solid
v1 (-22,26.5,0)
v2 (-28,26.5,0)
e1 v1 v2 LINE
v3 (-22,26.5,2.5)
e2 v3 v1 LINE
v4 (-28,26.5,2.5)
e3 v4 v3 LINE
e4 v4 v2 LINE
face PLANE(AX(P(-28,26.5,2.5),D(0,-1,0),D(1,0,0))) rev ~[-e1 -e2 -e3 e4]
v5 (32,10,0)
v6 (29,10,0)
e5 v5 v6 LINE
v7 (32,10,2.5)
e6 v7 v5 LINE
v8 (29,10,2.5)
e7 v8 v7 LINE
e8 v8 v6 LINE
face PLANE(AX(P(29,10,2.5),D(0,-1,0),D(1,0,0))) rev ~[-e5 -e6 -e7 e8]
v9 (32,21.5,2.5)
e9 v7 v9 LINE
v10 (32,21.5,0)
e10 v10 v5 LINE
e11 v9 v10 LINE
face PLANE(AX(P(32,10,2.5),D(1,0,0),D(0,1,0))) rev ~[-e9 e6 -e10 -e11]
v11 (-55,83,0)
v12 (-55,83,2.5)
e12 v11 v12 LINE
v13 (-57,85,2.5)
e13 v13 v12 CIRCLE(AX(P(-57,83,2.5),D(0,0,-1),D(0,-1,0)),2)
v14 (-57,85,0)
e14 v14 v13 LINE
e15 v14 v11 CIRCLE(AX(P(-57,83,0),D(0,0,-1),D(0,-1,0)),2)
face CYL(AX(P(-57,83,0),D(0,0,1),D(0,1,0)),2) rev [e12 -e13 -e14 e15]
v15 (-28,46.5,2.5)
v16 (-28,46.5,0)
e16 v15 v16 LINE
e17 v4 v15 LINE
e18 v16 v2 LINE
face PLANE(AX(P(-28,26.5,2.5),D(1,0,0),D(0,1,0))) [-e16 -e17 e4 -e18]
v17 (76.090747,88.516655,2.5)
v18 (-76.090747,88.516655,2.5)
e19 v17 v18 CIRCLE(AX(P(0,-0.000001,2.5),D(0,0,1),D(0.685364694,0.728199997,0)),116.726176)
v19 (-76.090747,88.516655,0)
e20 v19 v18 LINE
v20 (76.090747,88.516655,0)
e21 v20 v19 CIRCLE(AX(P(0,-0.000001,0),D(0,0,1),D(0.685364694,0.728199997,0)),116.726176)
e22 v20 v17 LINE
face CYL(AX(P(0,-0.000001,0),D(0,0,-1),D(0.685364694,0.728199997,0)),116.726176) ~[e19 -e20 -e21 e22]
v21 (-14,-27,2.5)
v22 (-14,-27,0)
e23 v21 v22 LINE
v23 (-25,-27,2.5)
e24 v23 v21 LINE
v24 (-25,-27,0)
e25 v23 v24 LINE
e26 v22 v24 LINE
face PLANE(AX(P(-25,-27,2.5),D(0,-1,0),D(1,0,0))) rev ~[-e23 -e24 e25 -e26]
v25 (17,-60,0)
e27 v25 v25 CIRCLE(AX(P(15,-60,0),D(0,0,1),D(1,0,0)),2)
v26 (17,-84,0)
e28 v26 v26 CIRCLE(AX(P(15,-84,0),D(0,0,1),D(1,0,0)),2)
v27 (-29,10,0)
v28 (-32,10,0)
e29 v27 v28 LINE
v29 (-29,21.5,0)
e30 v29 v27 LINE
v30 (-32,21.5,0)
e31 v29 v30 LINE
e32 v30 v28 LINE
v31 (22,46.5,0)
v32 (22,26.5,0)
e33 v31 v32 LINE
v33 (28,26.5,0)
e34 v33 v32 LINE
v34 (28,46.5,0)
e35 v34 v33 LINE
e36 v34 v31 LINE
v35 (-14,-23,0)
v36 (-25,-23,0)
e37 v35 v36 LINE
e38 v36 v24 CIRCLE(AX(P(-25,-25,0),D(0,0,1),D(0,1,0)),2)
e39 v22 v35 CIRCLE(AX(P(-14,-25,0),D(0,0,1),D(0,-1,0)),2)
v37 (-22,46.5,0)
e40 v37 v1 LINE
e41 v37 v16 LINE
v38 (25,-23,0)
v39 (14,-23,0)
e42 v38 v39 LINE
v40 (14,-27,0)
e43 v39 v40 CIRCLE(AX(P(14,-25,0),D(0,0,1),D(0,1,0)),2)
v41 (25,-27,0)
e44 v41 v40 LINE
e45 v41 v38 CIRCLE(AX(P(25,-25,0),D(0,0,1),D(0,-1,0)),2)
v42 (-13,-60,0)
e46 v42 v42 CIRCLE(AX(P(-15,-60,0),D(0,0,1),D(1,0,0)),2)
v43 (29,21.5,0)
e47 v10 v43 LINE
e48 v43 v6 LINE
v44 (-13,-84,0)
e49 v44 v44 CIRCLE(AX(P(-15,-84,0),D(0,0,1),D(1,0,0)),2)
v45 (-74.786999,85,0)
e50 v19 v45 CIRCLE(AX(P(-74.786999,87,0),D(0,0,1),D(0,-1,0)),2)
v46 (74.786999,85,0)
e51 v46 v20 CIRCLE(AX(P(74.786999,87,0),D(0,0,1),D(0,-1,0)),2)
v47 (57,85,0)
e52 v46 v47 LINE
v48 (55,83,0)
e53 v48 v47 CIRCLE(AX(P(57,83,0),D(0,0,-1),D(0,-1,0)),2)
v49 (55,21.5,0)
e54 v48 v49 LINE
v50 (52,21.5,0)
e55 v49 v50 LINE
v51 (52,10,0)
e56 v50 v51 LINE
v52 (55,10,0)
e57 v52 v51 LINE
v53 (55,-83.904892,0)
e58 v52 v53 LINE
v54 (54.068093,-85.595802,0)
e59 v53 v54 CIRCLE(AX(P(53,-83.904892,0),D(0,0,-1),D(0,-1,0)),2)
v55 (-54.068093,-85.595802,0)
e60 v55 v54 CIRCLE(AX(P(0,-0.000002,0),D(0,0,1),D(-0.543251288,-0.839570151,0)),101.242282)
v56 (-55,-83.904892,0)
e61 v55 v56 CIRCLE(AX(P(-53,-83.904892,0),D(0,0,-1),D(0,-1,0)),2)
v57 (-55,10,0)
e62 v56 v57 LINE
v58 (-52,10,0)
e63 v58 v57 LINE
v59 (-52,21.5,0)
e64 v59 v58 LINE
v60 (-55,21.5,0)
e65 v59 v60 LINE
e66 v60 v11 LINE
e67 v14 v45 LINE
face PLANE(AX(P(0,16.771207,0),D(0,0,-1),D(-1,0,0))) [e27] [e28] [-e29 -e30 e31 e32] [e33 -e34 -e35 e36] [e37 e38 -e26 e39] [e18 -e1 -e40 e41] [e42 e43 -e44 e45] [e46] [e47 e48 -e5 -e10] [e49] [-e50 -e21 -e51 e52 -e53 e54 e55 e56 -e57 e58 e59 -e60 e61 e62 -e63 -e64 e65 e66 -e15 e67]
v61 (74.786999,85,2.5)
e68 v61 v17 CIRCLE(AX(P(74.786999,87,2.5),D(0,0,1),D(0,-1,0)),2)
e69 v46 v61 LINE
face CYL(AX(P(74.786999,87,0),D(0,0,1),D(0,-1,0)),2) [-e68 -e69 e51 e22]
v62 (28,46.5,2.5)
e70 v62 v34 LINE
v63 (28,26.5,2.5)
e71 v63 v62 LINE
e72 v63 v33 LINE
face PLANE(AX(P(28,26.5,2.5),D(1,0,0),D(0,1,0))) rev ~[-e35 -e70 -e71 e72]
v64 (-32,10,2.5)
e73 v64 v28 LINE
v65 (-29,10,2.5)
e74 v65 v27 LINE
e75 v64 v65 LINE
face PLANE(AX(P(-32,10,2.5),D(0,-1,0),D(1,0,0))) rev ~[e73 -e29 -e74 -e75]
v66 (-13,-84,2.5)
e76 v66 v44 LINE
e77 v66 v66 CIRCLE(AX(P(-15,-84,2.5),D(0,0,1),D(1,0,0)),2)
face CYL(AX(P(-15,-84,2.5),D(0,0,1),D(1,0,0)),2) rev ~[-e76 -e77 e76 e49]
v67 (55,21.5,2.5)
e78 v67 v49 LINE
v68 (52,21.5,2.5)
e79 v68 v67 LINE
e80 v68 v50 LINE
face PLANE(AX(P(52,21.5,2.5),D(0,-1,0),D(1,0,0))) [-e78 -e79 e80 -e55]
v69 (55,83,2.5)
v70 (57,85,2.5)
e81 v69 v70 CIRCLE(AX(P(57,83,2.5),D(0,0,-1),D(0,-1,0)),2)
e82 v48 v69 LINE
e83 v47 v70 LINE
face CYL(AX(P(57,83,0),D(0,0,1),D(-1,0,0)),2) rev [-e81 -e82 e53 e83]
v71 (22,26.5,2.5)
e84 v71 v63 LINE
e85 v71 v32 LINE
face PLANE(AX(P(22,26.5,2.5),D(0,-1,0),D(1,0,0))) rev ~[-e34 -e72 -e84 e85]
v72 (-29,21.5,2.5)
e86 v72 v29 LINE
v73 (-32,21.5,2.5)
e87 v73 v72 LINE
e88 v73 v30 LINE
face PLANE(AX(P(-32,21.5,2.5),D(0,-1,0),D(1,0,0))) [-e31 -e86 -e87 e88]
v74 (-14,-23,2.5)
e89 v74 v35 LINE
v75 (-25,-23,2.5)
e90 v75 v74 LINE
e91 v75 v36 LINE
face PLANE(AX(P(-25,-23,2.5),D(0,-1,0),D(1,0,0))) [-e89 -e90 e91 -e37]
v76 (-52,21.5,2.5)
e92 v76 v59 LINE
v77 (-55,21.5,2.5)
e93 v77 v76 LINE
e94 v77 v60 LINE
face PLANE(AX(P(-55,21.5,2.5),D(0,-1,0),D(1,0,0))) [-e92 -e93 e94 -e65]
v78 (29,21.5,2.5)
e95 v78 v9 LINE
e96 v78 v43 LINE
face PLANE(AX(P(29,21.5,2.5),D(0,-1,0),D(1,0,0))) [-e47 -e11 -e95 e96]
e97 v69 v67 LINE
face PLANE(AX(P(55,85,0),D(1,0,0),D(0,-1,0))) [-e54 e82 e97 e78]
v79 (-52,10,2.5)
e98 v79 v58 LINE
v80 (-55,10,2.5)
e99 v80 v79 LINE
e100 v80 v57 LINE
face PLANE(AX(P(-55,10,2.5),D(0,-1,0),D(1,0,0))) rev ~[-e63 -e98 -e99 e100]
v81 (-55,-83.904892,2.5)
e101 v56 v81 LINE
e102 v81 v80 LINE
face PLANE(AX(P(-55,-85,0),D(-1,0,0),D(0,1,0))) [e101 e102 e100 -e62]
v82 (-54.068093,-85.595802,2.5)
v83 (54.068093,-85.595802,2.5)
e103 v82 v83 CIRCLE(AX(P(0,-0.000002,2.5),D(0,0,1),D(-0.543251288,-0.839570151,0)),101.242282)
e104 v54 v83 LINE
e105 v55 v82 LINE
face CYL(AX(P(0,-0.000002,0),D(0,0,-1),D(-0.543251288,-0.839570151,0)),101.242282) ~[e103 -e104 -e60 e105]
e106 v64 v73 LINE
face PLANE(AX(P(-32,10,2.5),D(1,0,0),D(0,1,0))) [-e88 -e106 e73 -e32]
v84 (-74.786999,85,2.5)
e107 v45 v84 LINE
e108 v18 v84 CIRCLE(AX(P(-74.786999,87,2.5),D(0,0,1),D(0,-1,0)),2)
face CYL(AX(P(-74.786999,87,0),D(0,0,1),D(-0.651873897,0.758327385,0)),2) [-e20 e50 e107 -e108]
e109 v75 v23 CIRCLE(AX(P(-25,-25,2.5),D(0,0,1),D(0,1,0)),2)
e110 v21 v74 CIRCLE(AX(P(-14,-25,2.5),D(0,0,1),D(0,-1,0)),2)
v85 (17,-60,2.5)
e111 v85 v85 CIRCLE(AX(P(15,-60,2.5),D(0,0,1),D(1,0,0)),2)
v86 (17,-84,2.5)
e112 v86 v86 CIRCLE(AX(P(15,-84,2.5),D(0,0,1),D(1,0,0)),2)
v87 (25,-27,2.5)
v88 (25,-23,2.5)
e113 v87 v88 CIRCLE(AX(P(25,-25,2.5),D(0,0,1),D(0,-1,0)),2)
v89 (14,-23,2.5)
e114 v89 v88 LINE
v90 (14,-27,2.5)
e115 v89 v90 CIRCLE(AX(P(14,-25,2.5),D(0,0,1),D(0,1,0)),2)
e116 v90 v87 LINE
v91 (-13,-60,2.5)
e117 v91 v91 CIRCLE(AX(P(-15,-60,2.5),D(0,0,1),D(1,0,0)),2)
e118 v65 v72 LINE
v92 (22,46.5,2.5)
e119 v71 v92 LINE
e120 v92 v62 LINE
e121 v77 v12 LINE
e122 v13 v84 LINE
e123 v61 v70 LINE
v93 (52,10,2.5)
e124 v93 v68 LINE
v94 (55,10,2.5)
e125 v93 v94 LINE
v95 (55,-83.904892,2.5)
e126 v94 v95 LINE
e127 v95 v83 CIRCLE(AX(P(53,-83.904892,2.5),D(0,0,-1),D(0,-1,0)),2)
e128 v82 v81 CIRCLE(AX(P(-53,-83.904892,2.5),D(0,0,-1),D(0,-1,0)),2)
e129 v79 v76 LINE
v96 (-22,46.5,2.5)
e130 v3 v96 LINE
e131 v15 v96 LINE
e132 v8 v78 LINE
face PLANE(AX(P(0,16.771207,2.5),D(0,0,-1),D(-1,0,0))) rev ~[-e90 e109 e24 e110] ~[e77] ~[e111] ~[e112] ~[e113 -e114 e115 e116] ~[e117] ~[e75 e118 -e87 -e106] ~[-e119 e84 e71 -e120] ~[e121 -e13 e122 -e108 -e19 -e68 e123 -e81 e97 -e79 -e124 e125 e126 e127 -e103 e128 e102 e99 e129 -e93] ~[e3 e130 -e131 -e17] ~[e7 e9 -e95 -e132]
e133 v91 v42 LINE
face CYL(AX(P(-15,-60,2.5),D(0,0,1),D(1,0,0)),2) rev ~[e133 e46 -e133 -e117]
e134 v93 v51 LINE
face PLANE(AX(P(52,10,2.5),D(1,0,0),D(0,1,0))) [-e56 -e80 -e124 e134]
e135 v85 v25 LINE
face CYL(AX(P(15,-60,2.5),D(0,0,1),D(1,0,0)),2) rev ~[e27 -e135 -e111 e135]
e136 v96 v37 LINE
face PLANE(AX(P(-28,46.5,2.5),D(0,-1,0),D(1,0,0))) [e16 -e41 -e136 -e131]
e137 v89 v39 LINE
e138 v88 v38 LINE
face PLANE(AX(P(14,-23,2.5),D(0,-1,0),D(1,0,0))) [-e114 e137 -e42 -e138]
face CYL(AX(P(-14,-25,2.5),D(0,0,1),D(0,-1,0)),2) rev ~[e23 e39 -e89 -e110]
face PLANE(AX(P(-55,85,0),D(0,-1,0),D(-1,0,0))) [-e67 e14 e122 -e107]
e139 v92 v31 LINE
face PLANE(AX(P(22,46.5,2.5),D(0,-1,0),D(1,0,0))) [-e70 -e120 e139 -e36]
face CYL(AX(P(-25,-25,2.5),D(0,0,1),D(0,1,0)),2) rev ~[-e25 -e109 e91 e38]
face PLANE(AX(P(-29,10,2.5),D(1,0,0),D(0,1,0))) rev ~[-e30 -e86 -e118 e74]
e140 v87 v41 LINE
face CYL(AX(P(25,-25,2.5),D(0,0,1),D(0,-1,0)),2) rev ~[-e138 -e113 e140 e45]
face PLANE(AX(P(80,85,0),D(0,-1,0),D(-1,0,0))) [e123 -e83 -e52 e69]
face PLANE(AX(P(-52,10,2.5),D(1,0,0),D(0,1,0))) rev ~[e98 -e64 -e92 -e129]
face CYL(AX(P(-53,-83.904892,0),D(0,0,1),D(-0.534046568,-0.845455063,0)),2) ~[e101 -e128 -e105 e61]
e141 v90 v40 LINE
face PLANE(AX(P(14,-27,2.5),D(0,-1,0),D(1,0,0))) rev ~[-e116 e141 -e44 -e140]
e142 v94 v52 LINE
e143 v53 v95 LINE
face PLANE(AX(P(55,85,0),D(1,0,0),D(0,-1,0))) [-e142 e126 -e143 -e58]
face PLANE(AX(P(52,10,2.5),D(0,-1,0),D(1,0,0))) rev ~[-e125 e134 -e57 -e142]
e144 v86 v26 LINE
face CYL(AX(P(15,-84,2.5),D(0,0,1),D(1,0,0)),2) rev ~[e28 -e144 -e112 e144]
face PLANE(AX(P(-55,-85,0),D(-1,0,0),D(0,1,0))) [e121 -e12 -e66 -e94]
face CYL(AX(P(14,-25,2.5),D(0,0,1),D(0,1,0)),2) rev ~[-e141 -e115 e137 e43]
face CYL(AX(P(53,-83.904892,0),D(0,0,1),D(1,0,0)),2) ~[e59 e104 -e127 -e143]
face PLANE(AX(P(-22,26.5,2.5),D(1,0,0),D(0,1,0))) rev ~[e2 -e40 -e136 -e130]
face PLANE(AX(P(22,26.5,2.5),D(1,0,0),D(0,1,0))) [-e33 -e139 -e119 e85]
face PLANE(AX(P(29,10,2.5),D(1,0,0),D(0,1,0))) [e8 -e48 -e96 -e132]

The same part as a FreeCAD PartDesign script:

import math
import FreeCAD as App
import Part
import Sketcher
Q = App.Units.Quantity


def edges_at(feature, points):
    """Names of the edges that pass closest to the given points."""
    edges = feature.Shape.Edges
    near = lambda p: min(range(len(edges)), key=lambda i: edges[i].distToShape(Part.Vertex(*p))[0])
    return sorted({f"Edge{near(p) + 1}" for p in points})


def add_polygon(sketch, points):
    """Adds a closed chain of lines whose ends are joined by coincident constraints."""
    first, n = sketch.GeometryCount, len(points)
    for a, b in zip(points, points[1:] + points[:1]):
        sketch.addGeometry(Part.LineSegment(App.Vector(*a, 0), App.Vector(*b, 0)), False)
    for i in range(n):
        sketch.addConstraint(Sketcher.Constraint("Coincident", first + i, 2, first + (i + 1) % n, 1))

doc = App.newDocument("Part")
body = doc.addObject("PartDesign::Body", "Body")

sketch1 = body.newObject("Sketcher::SketchObject", "Sketch")
sketch1.AttachmentSupport = (doc.getObject("XY_Plane"), [""])
sketch1.MapMode = "FlatFace"
sketch1.addGeometry([
    Part.LineSegment(App.Vector(55, -85, 0), App.Vector(55, 85, 0)),
    Part.LineSegment(App.Vector(55, 85, 0), App.Vector(80, 85, 0)),
    Part.ArcOfCircle(Part.Circle(App.Vector(0, 0, 0), App.Vector(0, 0, 1), 117), math.radians(47), math.radians(133)),
    Part.LineSegment(App.Vector(-80, 85, 0), App.Vector(-55, 85, 0)),
    Part.LineSegment(App.Vector(-55, 85, 0), App.Vector(-55, -85, 0)),
    Part.ArcOfCircle(Part.Circle(App.Vector(0, 0, 0), App.Vector(0, 0, 1), 101), math.radians(-123), math.radians(-57)),
], False)
sketch1.addConstraint([
    Sketcher.Constraint("Coincident", 0, 2, 1, 1),
    Sketcher.Constraint("Coincident", 1, 2, 2, 1),
    Sketcher.Constraint("Coincident", 2, 2, 3, 1),
    Sketcher.Constraint("Coincident", 3, 2, 4, 1),
    Sketcher.Constraint("Coincident", 4, 2, 5, 1),
    Sketcher.Constraint("Coincident", 5, 2, 0, 1),
    Sketcher.Constraint("Vertical", 0),
    Sketcher.Constraint("Horizontal", 1),
    Sketcher.Constraint("Horizontal", 3),
    Sketcher.Constraint("Vertical", 4),
    Sketcher.Constraint("Coincident", 2, 3, -1, 1),
    Sketcher.Constraint("Coincident", 5, 3, -1, 1),
    Sketcher.Constraint("Symmetric", 0, 2, 4, 2, -1, 1),
    Sketcher.Constraint("Horizontal", 1, 2, 2, 2),
    Sketcher.Constraint("DistanceX", 1, 1, 1, 2, Q("25 mm")),
    Sketcher.Constraint("DistanceY", 0, 1, 0, 2, Q("170 mm")),
    Sketcher.Constraint("DistanceX", -1, 1, 0, 2, Q("55 mm")),
])
pad1 = body.newObject("PartDesign::Pad", "Pad")
pad1.Profile = sketch1
pad1.Length = 2.5

sketch2 = body.newObject("Sketcher::SketchObject", "Sketch001")
sketch2.AttachmentSupport = (doc.getObject("XY_Plane"), [""])
sketch2.MapMode = "FlatFace"
sketch2.AttachmentOffset = App.Placement(App.Vector(0, 0, 2.5), App.Rotation())
add_polygon(sketch2, [(-55, 21.5), (-55, 10), (-52, 10), (-52, 21.5)])
add_polygon(sketch2, [(52, 21.5), (52, 10), (55, 10), (55, 21.5)])
add_polygon(sketch2, [(-32, 21.5), (-32, 10), (-29, 10), (-29, 21.5)])
add_polygon(sketch2, [(29, 21.5), (29, 10), (32, 10), (32, 21.5)])
sketch2.addConstraint([
    Sketcher.Constraint("Vertical", 0),
    Sketcher.Constraint("Horizontal", 1),
    Sketcher.Constraint("Vertical", 2),
    Sketcher.Constraint("Horizontal", 3),
    Sketcher.Constraint("Vertical", 4),
    Sketcher.Constraint("Horizontal", 5),
    Sketcher.Constraint("Vertical", 6),
    Sketcher.Constraint("Horizontal", 7),
    Sketcher.Constraint("Vertical", 8),
    Sketcher.Constraint("Horizontal", 9),
    Sketcher.Constraint("Vertical", 10),
    Sketcher.Constraint("Horizontal", 11),
    Sketcher.Constraint("Vertical", 12),
    Sketcher.Constraint("Horizontal", 13),
    Sketcher.Constraint("Vertical", 14),
    Sketcher.Constraint("Horizontal", 15),
    Sketcher.Constraint("Symmetric", 1, 2, 4, 2, -2),
    Sketcher.Constraint("Symmetric", 3, 2, 6, 2, -2),
    Sketcher.Constraint("Symmetric", 9, 2, 12, 2, -2),
    Sketcher.Constraint("Symmetric", 11, 2, 14, 2, -2),
    Sketcher.Constraint("Horizontal", 5, 2, 8, 2),
    Sketcher.Constraint("Horizontal", 7, 2, 10, 2),
    Sketcher.Constraint("Equal", 7, 9),
    Sketcher.Constraint("DistanceX", 1, 1, 1, 2, Q("3 mm")),
    Sketcher.Constraint("DistanceY", 0, 2, 0, 1, Q("11.5 mm")),
    Sketcher.Constraint("DistanceX", 0, 2, -1, 1, Q("55 mm")),
    Sketcher.Constraint("DistanceY", -1, 1, 0, 2, Q("10 mm")),
    Sketcher.Constraint("DistanceX", 8, 2, -1, 1, Q("32 mm")),
])
pocket1 = body.newObject("PartDesign::Pocket", "Pocket")
pocket1.Profile = sketch2
pocket1.Type = "ThroughAll"
doc.recompute()

fillet = body.newObject("PartDesign::Fillet", "Fillet")
fillet.Base = (pocket1, edges_at(pocket1, [(-55, 85, 1.25), (55, 85, 1.25)]))
fillet.Radius = 2
doc.recompute()

fillet2 = body.newObject("PartDesign::Fillet", "Fillet001")
fillet2.Base = (fillet, edges_at(fillet, [
    (80, 85, 1.25),
    (-80, 85, 1.25),
    (-55, -85, 1.25),
    (55, -85, 1.25),
]))
fillet2.Radius = 2

sketch3 = body.newObject("Sketcher::SketchObject", "Sketch002")
sketch3.AttachmentSupport = (doc.getObject("XY_Plane"), [""])
sketch3.MapMode = "FlatFace"
sketch3.AttachmentOffset = App.Placement(App.Vector(0, 0, 2.5), App.Rotation())
add_polygon(sketch3, [(-28, 46), (-28, 26), (-22, 26), (-22, 46)])
add_polygon(sketch3, [(22, 46), (22, 26), (28, 26), (28, 46)])
sketch3.addConstraint([
    Sketcher.Constraint("Vertical", 0),
    Sketcher.Constraint("Horizontal", 1),
    Sketcher.Constraint("Vertical", 2),
    Sketcher.Constraint("Horizontal", 3),
    Sketcher.Constraint("Vertical", 4),
    Sketcher.Constraint("Horizontal", 5),
    Sketcher.Constraint("Vertical", 6),
    Sketcher.Constraint("Horizontal", 7),
    Sketcher.Constraint("Symmetric", 1, 2, 4, 2, -2),
    Sketcher.Constraint("Symmetric", 3, 2, 6, 2, -2),
    Sketcher.Constraint("DistanceX", 1, 1, 1, 2, Q("6 mm")),
    Sketcher.Constraint("DistanceY", 0, 2, 0, 1, Q("20 mm")),
    Sketcher.Constraint("DistanceX", 0, 2, -1, 1, Q("28 mm")),
    Sketcher.Constraint("DistanceY", -1, 1, 0, 2, Q("26.5 mm")),
])
pocket2 = body.newObject("PartDesign::Pocket", "Pocket001")
pocket2.Profile = sketch3
pocket2.Type = "ThroughAll"

sketch4 = body.newObject("Sketcher::SketchObject", "Sketch003")
sketch4.AttachmentSupport = (doc.getObject("XY_Plane"), [""])
sketch4.MapMode = "FlatFace"
sketch4.AttachmentOffset = App.Placement(App.Vector(0, 0, 2.5), App.Rotation())
sketch4.addGeometry([
    Part.Circle(App.Vector(-15, -60, 0), App.Vector(0, 0, 1), 2),
    Part.Circle(App.Vector(15, -60, 0), App.Vector(0, 0, 1), 2),
    Part.Circle(App.Vector(15, -84, 0), App.Vector(0, 0, 1), 2),
    Part.Circle(App.Vector(-15, -84, 0), App.Vector(0, 0, 1), 2),
], False)
sketch4.addConstraint([
    Sketcher.Constraint("Equal", 0, 1),
    Sketcher.Constraint("Equal", 1, 2),
    Sketcher.Constraint("Equal", 2, 3),
    Sketcher.Constraint("Symmetric", 0, 3, 1, 3, -2),
    Sketcher.Constraint("Symmetric", 2, 3, 3, 3, -2),
    Sketcher.Constraint("Vertical", 1, 3, 2, 3),
    Sketcher.Constraint("Diameter", 0, Q("4 mm")),
    Sketcher.Constraint("DistanceX", 0, 3, -1, 1, Q("15 mm")),
    Sketcher.Constraint("DistanceY", 0, 3, -1, 1, Q("60 mm")),
    Sketcher.Constraint("DistanceY", 2, 3, -1, 1, Q("84 mm")),
])
pocket3 = body.newObject("PartDesign::Pocket", "Pocket002")
pocket3.Profile = sketch4
pocket3.Type = "ThroughAll"

sketch5 = body.newObject("Sketcher::SketchObject", "Sketch004")
sketch5.AttachmentSupport = (doc.getObject("XY_Plane"), [""])
sketch5.MapMode = "FlatFace"
sketch5.AttachmentOffset = App.Placement(App.Vector(0, 0, 2.5), App.Rotation())
sketch5.addGeometry([
    Part.ArcOfCircle(Part.Circle(App.Vector(-25, -25, 0), App.Vector(0, 0, 1), 2), math.radians(90), math.radians(270)),
    Part.LineSegment(App.Vector(-25, -27, 0), App.Vector(-14, -27, 0)),
    Part.ArcOfCircle(Part.Circle(App.Vector(-14, -25, 0), App.Vector(0, 0, 1), 2), math.radians(-90), math.radians(90)),
    Part.LineSegment(App.Vector(-14, -23, 0), App.Vector(-25, -23, 0)),
    Part.ArcOfCircle(Part.Circle(App.Vector(14, -25, 0), App.Vector(0, 0, 1), 2), math.radians(90), math.radians(270)),
    Part.LineSegment(App.Vector(14, -27, 0), App.Vector(25, -27, 0)),
    Part.ArcOfCircle(Part.Circle(App.Vector(25, -25, 0), App.Vector(0, 0, 1), 2), math.radians(-90), math.radians(90)),
    Part.LineSegment(App.Vector(25, -23, 0), App.Vector(14, -23, 0)),
], False)
sketch5.addConstraint([
    Sketcher.Constraint("Tangent", 0, 2, 1, 1),
    Sketcher.Constraint("Tangent", 1, 2, 2, 1),
    Sketcher.Constraint("Tangent", 2, 2, 3, 1),
    Sketcher.Constraint("Tangent", 3, 2, 0, 1),
    Sketcher.Constraint("Tangent", 4, 2, 5, 1),
    Sketcher.Constraint("Tangent", 5, 2, 6, 1),
    Sketcher.Constraint("Tangent", 6, 2, 7, 1),
    Sketcher.Constraint("Tangent", 7, 2, 4, 1),
    Sketcher.Constraint("Horizontal", 1),
    Sketcher.Constraint("Horizontal", 3),
    Sketcher.Constraint("Horizontal", 5),
    Sketcher.Constraint("Horizontal", 7),
    Sketcher.Constraint("Equal", 2, 4),
    Sketcher.Constraint("Symmetric", 2, 3, 4, 3, -2),
    Sketcher.Constraint("Equal", 3, 5),
    Sketcher.Constraint("Radius", 0, Q("2 mm")),
    Sketcher.Constraint("DistanceX", 1, 1, 1, 2, Q("11 mm")),
    Sketcher.Constraint("DistanceX", 0, 3, -1, 1, Q("25 mm")),
    Sketcher.Constraint("DistanceY", 0, 3, -1, 1, Q("25 mm")),
])
pocket4 = body.newObject("PartDesign::Pocket", "Pocket003")
pocket4.Profile = sketch5
pocket4.Type = "ThroughAll"

doc.recompute()
